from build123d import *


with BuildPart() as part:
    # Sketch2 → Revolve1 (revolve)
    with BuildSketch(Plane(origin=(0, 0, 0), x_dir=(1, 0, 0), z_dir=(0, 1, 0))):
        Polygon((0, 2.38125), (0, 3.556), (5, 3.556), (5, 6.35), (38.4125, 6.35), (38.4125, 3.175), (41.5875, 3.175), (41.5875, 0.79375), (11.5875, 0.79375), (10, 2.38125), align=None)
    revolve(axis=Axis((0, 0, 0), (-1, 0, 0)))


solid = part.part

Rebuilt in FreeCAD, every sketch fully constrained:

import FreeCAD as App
import Part
import Sketcher
Q = App.Units.Quantity


def add_polygon(sketch, points):
    """Adds a closed chain of lines whose ends are joined by coincident constraints."""
    first, n = sketch.GeometryCount, len(points)
    for a, b in zip(points, points[1:] + points[:1]):
        sketch.addGeometry(Part.LineSegment(App.Vector(*a, 0), App.Vector(*b, 0)), False)
    for i in range(n):
        sketch.addConstraint(Sketcher.Constraint("Coincident", first + i, 2, first + (i + 1) % n, 1))

doc = App.newDocument("Part")
params = doc.addObject("Spreadsheet::Sheet", "Params")
for row, (alias, value) in enumerate([
    ("sketch1_width", "10 mm"),
    ("sketch1_width2", "30 mm"),
    ("sketch1_width3", "5 mm"),
    ("revolution_angle", "360 deg"),
], start=1):
    params.set(f"A{row}", alias)
    params.set(f"B{row}", "=" + value)
    params.setAlias(f"B{row}", alias)

body = doc.addObject("PartDesign::Body", "Body")

# Sketch on XZ plane
sketch1 = body.newObject("Sketcher::SketchObject", "Sketch")
sketch1.AttachmentSupport = (doc.getObject("XZ_Plane"), [""])
sketch1.MapMode = "FlatFace"
add_polygon(sketch1, [(0, -3.6), (0, -2.4), (10, -2.4), (11.6, -0.8), (41.6, -0.8), (41.6, -3.2), (38.4, -3.2), (38.4, -6.3), (5, -6.3), (5, -3.6)])  # lines 0-9
sketch1.addConstraint(Sketcher.Constraint("Vertical", 0))
sketch1.addConstraint(Sketcher.Constraint("Horizontal", 1))
sketch1.addConstraint(Sketcher.Constraint("Horizontal", 3))
sketch1.addConstraint(Sketcher.Constraint("Vertical", 4))
sketch1.addConstraint(Sketcher.Constraint("Horizontal", 5))
sketch1.addConstraint(Sketcher.Constraint("Vertical", 6))
sketch1.addConstraint(Sketcher.Constraint("Horizontal", 7))
sketch1.addConstraint(Sketcher.Constraint("Vertical", 8))
sketch1.addConstraint(Sketcher.Constraint("Horizontal", 9))
sketch1.addConstraint(Sketcher.Constraint("PointOnObject", 0, 2, -2))
sketch1.addConstraint(Sketcher.Constraint("Equal", 5, 6))
sketch1.addConstraint(Sketcher.Constraint("DistanceX", 1, 1, 1, 2, 10.0))
sketch1.addConstraint(Sketcher.Constraint("DistanceX", 3, 1, 3, 2, 30.0))
sketch1.addConstraint(Sketcher.Constraint("DistanceX", 9, 2, 9, 1, 5.0))
sketch1.addConstraint(Sketcher.Constraint("Angle", 2, Q("45 deg")))
sketch1.addConstraint(Sketcher.Constraint("DistanceX", 5, 2, 5, 1, 3.175))
sketch1.addConstraint(Sketcher.Constraint("DistanceY", 8, 1, 8, 2, 2.794))
sketch1.addConstraint(Sketcher.Constraint("DistanceY", 6, 2, -1, 1, 6.35))
sketch1.addConstraint(Sketcher.Constraint("DistanceX", 7, 2, 7, 1, 33.4125))
sketch1.addConstraint(Sketcher.Constraint("DistanceY", 0, 1, 0, 2, 1.17475))
sketch1.setExpression("Constraints[21]", "Params.sketch1_width")
sketch1.setExpression("Constraints[22]", "Params.sketch1_width2")
sketch1.setExpression("Constraints[23]", "Params.sketch1_width3")
revolution = body.newObject("PartDesign::Revolution", "Revolution")
revolution.Profile = sketch1
revolution.ReferenceAxis = (sketch1, ["H_Axis"])
revolution.setExpression("Angle", "Params.revolution_angle")

doc.recompute()
